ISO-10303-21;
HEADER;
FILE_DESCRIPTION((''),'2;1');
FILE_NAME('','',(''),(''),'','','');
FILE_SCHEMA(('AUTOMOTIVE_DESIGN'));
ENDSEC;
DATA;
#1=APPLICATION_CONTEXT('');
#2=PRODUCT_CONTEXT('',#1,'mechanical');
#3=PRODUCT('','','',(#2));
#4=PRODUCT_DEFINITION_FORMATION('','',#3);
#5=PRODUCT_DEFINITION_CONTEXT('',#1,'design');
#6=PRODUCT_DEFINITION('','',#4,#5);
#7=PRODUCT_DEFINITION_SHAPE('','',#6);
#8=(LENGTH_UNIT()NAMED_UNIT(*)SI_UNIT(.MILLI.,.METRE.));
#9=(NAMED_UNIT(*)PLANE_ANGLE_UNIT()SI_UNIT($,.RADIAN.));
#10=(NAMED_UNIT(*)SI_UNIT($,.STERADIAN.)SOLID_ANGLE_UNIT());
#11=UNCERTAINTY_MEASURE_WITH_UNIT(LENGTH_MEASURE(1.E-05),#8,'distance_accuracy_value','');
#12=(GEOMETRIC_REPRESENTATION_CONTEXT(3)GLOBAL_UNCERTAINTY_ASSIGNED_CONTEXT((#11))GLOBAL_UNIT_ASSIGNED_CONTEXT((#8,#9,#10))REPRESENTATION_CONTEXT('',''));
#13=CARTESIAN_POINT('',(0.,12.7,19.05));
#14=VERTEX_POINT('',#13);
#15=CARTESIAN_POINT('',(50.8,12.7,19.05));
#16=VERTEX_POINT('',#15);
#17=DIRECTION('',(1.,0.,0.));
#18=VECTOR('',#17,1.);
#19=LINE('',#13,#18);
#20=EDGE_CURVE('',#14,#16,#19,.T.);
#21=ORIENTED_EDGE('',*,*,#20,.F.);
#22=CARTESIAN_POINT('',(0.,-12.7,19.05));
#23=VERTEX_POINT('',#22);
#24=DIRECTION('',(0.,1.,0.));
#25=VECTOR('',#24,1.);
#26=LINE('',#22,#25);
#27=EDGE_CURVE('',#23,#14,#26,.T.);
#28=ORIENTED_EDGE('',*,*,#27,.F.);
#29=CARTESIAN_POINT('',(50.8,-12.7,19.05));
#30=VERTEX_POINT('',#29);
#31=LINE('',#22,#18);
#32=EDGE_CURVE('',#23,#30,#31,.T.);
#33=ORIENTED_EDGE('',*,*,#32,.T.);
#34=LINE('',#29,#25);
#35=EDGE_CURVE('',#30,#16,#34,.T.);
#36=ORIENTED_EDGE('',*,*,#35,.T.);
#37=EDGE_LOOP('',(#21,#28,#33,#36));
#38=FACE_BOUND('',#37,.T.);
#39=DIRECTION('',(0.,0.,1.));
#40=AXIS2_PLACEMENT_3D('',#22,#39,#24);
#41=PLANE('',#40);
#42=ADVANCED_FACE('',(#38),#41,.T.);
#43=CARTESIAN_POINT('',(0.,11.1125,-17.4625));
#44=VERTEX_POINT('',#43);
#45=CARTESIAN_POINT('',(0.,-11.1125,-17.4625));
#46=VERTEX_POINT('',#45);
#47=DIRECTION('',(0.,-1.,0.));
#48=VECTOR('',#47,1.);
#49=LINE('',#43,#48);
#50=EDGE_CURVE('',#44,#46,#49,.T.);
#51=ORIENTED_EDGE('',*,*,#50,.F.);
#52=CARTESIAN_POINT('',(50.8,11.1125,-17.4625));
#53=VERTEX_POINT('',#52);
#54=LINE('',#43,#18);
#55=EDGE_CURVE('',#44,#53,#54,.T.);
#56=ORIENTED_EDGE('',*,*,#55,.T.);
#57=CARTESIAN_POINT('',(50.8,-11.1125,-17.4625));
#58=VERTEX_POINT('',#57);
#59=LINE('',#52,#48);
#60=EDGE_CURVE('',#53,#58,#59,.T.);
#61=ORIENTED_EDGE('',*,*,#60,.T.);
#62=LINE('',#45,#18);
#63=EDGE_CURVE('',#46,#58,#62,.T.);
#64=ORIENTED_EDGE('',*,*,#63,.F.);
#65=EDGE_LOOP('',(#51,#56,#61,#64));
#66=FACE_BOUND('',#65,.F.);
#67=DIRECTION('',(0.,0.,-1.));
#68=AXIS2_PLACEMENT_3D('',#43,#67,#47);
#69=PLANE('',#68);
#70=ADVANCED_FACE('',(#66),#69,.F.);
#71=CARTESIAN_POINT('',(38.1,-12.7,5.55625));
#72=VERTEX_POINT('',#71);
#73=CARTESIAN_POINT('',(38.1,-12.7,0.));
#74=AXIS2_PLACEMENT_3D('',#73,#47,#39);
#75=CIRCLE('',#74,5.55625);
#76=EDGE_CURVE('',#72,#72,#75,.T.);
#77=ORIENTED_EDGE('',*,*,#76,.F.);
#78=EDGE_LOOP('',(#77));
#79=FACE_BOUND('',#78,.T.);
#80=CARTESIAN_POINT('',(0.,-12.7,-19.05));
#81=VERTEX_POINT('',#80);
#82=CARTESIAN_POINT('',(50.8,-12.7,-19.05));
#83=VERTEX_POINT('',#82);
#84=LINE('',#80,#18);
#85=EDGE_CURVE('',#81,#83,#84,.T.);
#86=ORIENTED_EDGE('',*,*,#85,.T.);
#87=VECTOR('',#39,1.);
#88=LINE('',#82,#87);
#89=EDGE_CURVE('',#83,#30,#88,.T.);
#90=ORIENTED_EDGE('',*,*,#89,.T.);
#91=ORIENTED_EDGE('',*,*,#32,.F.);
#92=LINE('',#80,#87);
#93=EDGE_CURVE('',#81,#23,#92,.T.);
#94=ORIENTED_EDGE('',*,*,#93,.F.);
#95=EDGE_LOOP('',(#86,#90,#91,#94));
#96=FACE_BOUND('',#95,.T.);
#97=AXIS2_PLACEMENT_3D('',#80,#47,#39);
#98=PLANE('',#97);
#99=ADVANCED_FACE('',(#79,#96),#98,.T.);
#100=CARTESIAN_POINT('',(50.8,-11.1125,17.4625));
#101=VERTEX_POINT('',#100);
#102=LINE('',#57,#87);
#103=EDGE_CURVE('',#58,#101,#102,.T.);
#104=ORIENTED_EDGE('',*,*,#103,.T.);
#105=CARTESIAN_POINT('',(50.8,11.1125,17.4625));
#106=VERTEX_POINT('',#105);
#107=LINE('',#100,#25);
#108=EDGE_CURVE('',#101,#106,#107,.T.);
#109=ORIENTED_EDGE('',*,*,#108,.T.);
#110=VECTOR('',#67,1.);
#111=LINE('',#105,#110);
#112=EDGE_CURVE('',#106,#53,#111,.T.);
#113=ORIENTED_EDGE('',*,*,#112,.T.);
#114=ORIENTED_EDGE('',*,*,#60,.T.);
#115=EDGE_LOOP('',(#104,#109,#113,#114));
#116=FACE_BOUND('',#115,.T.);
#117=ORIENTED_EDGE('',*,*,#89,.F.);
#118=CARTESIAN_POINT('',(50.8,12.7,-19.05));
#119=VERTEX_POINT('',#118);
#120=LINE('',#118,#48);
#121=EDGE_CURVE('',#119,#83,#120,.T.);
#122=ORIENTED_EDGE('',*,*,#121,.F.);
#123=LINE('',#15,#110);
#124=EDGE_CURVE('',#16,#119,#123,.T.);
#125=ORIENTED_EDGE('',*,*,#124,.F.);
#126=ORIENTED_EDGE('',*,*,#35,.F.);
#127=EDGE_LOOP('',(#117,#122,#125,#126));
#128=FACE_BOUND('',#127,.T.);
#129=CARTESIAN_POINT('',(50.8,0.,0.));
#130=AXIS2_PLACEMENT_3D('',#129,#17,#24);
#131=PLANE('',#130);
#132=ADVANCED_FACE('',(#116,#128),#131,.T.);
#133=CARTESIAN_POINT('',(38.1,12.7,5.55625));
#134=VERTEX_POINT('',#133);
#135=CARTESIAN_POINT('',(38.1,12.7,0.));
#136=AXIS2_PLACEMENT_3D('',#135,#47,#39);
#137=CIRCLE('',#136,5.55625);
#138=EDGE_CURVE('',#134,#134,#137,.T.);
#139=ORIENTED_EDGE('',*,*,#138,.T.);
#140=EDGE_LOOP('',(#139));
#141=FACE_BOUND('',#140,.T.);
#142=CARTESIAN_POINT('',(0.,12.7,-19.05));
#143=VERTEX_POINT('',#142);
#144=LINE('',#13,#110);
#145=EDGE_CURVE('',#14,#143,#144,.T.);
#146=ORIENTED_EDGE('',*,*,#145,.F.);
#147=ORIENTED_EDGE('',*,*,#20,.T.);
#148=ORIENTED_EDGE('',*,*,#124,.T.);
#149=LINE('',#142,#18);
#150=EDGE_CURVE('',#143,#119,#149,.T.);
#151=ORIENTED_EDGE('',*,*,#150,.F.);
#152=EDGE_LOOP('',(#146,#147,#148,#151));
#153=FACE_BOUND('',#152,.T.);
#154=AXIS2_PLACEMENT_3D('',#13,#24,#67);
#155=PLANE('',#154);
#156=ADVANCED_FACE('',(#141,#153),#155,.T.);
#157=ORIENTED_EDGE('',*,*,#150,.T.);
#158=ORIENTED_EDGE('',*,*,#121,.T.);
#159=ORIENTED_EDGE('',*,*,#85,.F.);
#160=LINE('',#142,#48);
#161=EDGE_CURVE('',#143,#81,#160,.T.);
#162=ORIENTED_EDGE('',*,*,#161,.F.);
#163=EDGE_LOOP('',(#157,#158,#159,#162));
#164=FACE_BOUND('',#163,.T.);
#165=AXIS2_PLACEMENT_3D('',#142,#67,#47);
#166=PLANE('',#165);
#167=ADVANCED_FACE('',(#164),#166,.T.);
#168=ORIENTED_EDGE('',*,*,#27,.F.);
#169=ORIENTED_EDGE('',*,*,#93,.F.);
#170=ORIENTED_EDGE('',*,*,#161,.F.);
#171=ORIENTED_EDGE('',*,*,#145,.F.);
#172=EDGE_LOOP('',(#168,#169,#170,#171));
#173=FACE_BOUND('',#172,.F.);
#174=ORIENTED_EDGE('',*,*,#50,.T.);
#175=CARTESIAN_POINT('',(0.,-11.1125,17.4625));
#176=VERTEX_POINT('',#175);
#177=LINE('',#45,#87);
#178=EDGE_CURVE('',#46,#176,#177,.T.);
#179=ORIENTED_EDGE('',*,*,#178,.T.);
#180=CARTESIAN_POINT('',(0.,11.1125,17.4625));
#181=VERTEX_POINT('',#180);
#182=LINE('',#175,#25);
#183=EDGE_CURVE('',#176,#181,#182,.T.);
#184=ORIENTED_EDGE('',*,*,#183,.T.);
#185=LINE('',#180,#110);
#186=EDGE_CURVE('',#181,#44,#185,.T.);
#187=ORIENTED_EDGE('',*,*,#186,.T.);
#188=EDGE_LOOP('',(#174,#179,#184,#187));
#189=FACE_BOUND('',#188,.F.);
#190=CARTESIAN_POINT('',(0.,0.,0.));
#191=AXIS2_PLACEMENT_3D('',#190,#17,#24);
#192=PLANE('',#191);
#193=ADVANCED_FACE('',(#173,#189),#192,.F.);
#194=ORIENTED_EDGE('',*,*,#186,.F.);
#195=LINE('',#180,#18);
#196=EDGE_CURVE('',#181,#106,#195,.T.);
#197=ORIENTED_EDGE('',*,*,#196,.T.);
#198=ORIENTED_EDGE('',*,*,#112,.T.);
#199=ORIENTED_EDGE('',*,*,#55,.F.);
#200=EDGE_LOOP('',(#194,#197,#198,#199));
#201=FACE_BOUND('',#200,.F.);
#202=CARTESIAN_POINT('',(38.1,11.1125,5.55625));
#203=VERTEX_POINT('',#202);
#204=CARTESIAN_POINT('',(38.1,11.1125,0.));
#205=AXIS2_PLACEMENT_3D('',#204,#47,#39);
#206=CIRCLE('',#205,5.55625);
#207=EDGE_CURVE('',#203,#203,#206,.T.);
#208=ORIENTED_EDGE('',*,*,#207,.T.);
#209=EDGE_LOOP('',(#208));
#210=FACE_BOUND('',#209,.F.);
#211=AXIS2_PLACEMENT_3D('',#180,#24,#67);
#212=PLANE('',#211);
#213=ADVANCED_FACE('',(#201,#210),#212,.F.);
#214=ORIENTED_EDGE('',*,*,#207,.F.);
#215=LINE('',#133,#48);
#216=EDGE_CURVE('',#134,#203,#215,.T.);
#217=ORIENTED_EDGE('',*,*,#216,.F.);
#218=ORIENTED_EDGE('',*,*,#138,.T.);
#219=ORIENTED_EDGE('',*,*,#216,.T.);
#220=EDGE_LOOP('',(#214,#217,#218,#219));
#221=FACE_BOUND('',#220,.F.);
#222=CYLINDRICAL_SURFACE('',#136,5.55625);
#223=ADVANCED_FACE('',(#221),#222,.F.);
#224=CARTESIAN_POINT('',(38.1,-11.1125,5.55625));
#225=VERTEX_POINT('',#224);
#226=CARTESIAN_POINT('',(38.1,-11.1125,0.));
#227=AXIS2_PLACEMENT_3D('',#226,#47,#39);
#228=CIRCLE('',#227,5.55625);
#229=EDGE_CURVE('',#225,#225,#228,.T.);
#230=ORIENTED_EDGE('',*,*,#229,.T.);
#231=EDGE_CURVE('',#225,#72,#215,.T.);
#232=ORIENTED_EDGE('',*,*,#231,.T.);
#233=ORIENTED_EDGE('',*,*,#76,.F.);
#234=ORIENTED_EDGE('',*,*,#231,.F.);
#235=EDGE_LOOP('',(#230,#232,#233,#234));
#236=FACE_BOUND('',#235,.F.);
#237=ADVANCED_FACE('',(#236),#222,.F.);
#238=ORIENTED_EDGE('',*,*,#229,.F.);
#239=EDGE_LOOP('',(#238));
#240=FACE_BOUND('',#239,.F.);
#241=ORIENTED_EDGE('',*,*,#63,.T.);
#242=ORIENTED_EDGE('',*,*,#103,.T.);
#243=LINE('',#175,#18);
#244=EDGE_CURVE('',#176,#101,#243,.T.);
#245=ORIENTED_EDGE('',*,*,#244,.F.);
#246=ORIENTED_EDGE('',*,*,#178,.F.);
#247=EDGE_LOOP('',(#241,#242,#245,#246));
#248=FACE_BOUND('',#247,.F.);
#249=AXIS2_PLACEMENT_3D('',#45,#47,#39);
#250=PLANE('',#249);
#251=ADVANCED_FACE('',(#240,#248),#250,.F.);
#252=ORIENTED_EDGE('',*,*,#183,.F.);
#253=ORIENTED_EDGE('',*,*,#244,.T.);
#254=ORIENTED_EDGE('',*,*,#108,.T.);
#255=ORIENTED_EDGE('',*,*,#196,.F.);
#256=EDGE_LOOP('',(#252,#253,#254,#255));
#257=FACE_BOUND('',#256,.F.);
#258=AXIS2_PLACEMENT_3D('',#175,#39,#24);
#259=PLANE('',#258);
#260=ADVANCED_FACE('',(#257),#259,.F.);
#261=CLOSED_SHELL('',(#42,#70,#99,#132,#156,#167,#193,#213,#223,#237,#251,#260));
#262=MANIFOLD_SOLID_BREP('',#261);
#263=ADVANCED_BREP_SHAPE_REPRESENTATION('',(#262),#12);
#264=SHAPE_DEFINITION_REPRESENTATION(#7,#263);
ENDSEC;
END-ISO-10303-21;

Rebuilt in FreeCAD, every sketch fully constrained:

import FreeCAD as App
import Part
import Sketcher
Q = App.Units.Quantity

doc = App.newDocument("Part")
body = doc.addObject("PartDesign::Body", "Body")

sketch1 = body.newObject("Sketcher::SketchObject", "Sketch")
sketch1.AttachmentSupport = (doc.getObject("YZ_Plane"), [""])
sketch1.MapMode = "FlatFace"
sketch1.addGeometry([
    Part.LineSegment(App.Vector(13, 19, 0), App.Vector(-13, 19, 0)),
    Part.LineSegment(App.Vector(-13, 19, 0), App.Vector(-13, -19, 0)),
    Part.LineSegment(App.Vector(-13, -19, 0), App.Vector(13, -19, 0)),
    Part.LineSegment(App.Vector(13, -19, 0), App.Vector(13, 19, 0)),
    Part.LineSegment(App.Vector(-11, -17, 0), App.Vector(-11, 17, 0)),
    Part.LineSegment(App.Vector(-11, 17, 0), App.Vector(11, 17, 0)),
    Part.LineSegment(App.Vector(11, 17, 0), App.Vector(11, -17, 0)),
    Part.LineSegment(App.Vector(11, -17, 0), App.Vector(-11, -17, 0)),
], False)
sketch1.addConstraint([
    Sketcher.Constraint("Coincident", 0, 2, 1, 1),
    Sketcher.Constraint("Coincident", 1, 2, 2, 1),
    Sketcher.Constraint("Coincident", 2, 2, 3, 1),
    Sketcher.Constraint("Coincident", 3, 2, 0, 1),
    Sketcher.Constraint("Coincident", 4, 2, 5, 1),
    Sketcher.Constraint("Coincident", 5, 2, 6, 1),
    Sketcher.Constraint("Coincident", 6, 2, 7, 1),
    Sketcher.Constraint("Coincident", 7, 2, 4, 1),
    Sketcher.Constraint("Horizontal", 0),
    Sketcher.Constraint("Vertical", 1),
    Sketcher.Constraint("Horizontal", 2),
    Sketcher.Constraint("Vertical", 3),
    Sketcher.Constraint("Vertical", 4),
    Sketcher.Constraint("Horizontal", 5),
    Sketcher.Constraint("Vertical", 6),
    Sketcher.Constraint("Horizontal", 7),
    Sketcher.Constraint("Symmetric", 0, 2, 2, 2, -1, 1),
    Sketcher.Constraint("Symmetric", 4, 2, 6, 2, -1, 1),
    Sketcher.Constraint("DistanceX", 0, 2, 0, 1, Q("1 in")),
    Sketcher.Constraint("DistanceY", 1, 2, 1, 1, Q("1.5 in")),
    Sketcher.Constraint("DistanceX", 0, 2, 4, 2, Q("0.0625 in")),
    Sketcher.Constraint("DistanceY", 4, 2, 0, 2, Q("0.0625 in")),
])
pad1 = body.newObject("PartDesign::Pad", "Pad")
pad1.Profile = sketch1
pad1.Length = Q("2 in")

sketch2 = body.newObject("Sketcher::SketchObject", "Sketch001")
sketch2.AttachmentSupport = (doc.getObject("XZ_Plane"), [""])
sketch2.MapMode = "FlatFace"
sketch2.AttachmentOffset = App.Placement(App.Vector(0, 0, -0.5 * 25.4), App.Rotation())
sketch2.addGeometry(Part.Circle(App.Vector(38, 0, 0), App.Vector(0, 0, 1), 6), False)
sketch2.addConstraint([
    Sketcher.Constraint("PointOnObject", 0, 3, -1),
    Sketcher.Constraint("Diameter", 0, Q("0.4375 in")),
    Sketcher.Constraint("DistanceX", -1, 1, 0, 3, Q("1.5 in")),
])
doc.recompute()
hole = body.newObject("PartDesign::Hole", "Hole")
hole.Profile = sketch2
hole.ThreadType = "None"
hole.Diameter = Q("0.4375 in")
hole.DepthType = "ThroughAll"
hole.Reversed = True

doc.recompute()
